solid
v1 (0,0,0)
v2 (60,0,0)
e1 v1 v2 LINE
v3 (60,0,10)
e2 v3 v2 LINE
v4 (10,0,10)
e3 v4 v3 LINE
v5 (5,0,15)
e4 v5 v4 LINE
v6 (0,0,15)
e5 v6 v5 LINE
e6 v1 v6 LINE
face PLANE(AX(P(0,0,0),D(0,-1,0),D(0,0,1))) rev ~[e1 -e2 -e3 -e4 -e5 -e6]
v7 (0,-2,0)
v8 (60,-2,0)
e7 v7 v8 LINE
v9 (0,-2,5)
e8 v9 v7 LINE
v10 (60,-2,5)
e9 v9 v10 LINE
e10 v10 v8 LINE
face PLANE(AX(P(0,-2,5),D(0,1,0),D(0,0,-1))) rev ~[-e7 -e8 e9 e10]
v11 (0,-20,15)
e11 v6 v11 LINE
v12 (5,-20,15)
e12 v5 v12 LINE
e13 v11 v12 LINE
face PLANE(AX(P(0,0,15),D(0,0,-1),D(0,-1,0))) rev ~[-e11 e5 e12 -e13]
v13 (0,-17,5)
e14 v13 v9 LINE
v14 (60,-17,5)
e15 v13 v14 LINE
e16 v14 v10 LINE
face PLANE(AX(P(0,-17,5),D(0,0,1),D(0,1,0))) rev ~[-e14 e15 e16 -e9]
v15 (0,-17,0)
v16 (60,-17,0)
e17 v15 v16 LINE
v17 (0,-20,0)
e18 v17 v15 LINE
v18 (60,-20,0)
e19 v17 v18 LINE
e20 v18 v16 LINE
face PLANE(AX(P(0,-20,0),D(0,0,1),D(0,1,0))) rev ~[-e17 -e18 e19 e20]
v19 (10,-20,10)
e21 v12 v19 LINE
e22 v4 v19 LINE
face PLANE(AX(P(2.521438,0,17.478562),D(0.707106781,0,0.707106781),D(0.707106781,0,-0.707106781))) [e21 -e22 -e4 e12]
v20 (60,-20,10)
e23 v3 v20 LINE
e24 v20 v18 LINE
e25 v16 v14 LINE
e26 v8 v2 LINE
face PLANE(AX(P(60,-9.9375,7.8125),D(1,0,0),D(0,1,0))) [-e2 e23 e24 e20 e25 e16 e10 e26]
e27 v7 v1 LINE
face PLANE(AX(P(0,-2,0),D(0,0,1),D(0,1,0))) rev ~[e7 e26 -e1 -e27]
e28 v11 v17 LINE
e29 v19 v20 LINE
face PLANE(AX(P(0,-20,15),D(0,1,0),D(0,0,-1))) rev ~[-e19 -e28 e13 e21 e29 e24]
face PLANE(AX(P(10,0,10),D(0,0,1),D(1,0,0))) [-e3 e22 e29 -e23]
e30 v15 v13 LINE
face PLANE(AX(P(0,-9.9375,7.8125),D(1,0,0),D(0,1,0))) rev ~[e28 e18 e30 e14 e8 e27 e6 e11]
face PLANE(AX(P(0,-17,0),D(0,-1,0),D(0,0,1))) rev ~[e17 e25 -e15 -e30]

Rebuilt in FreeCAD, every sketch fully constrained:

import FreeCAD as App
import Part
import Sketcher
Q = App.Units.Quantity

doc = App.newDocument("Part")
body = doc.addObject("PartDesign::Body", "Body")

# Sketch on YZ plane
sketch1 = body.newObject("Sketcher::SketchObject", "Sketch")
sketch1.AttachmentSupport = (doc.getObject("YZ_Plane"), [""])
sketch1.MapMode = "FlatFace"
sketch1.addGeometry(Part.LineSegment(App.Vector(-2, 0, 0), App.Vector(0, 0, 0)), False)
sketch1.addGeometry(Part.LineSegment(App.Vector(0, 0, 0), App.Vector(0, 15, 0)), False)
sketch1.addGeometry(Part.LineSegment(App.Vector(0, 15, 0), App.Vector(-20, 15, 0)), False)
sketch1.addGeometry(Part.LineSegment(App.Vector(-20, 15, 0), App.Vector(-20, 0, 0)), False)
sketch1.addGeometry(Part.LineSegment(App.Vector(-20, 0, 0), App.Vector(-17, 0, 0)), False)
sketch1.addGeometry(Part.LineSegment(App.Vector(-17, 0, 0), App.Vector(-17, 5, 0)), False)
sketch1.addGeometry(Part.LineSegment(App.Vector(-17, 5, 0), App.Vector(-2, 5, 0)), False)
sketch1.addGeometry(Part.LineSegment(App.Vector(-2, 5, 0), App.Vector(-2, 0, 0)), False)
sketch1.addConstraint(Sketcher.Constraint("Coincident", 0, 2, 1, 1))
sketch1.addConstraint(Sketcher.Constraint("Coincident", 1, 2, 2, 1))
sketch1.addConstraint(Sketcher.Constraint("Coincident", 2, 2, 3, 1))
sketch1.addConstraint(Sketcher.Constraint("Coincident", 3, 2, 4, 1))
sketch1.addConstraint(Sketcher.Constraint("Coincident", 4, 2, 5, 1))
sketch1.addConstraint(Sketcher.Constraint("Coincident", 5, 2, 6, 1))
sketch1.addConstraint(Sketcher.Constraint("Coincident", 6, 2, 7, 1))
sketch1.addConstraint(Sketcher.Constraint("Coincident", 7, 2, 0, 1))
sketch1.addConstraint(Sketcher.Constraint("Horizontal", 0))
sketch1.addConstraint(Sketcher.Constraint("Vertical", 1))
sketch1.addConstraint(Sketcher.Constraint("Horizontal", 2))
sketch1.addConstraint(Sketcher.Constraint("Vertical", 3))
sketch1.addConstraint(Sketcher.Constraint("Horizontal", 4))
sketch1.addConstraint(Sketcher.Constraint("Vertical", 5))
sketch1.addConstraint(Sketcher.Constraint("Horizontal", 6))
sketch1.addConstraint(Sketcher.Constraint("Vertical", 7))
sketch1.addConstraint(Sketcher.Constraint("Coincident", 0, 2, -1, 1))
sketch1.addConstraint(Sketcher.Constraint("PointOnObject", 3, 2, -1))
sketch1.addConstraint(Sketcher.Constraint("Equal", 6, 1))
sketch1.addConstraint(Sketcher.Constraint("DistanceX", 0, 1, 0, 2, Q("2 mm")))
sketch1.addConstraint(Sketcher.Constraint("DistanceX", 2, 2, 2, 1, Q("20 mm")))
sketch1.addConstraint(Sketcher.Constraint("DistanceX", 4, 1, 4, 2, Q("3 mm")))
sketch1.addConstraint(Sketcher.Constraint("DistanceY", 5, 1, 5, 2, Q("5 mm")))
pad1 = body.newObject("PartDesign::Pad", "Pad")
pad1.Profile = sketch1
pad1.Length = 60

# Sketch on XZ plane
sketch2 = body.newObject("Sketcher::SketchObject", "Sketch001")
sketch2.AttachmentSupport = (doc.getObject("XZ_Plane"), [""])
sketch2.MapMode = "FlatFace"
sketch2.addGeometry(Part.LineSegment(App.Vector(10, 10, 0), App.Vector(66, 10, 0)), False)
sketch2.addGeometry(Part.LineSegment(App.Vector(66, 10, 0), App.Vector(63, 17, 0)), False)
sketch2.addGeometry(Part.LineSegment(App.Vector(63, 17, 0), App.Vector(3, 17, 0)), False)
sketch2.addGeometry(Part.LineSegment(App.Vector(3, 17, 0), App.Vector(10, 10, 0)), False)
sketch2.addConstraint(Sketcher.Constraint("Coincident", 0, 2, 1, 1))
sketch2.addConstraint(Sketcher.Constraint("Coincident", 1, 2, 2, 1))
sketch2.addConstraint(Sketcher.Constraint("Coincident", 2, 2, 3, 1))
sketch2.addConstraint(Sketcher.Constraint("Coincident", 3, 2, 0, 1))
sketch2.addConstraint(Sketcher.Constraint("Horizontal", 0))
sketch2.addConstraint(Sketcher.Constraint("Horizontal", 2))
sketch2.addConstraint(Sketcher.Constraint("Angle", 3, Q("-45 deg")))
sketch2.addConstraint(Sketcher.Constraint("DistanceY", -1, 1, 0, 2, Q("10 mm")))
sketch2.addConstraint(Sketcher.Constraint("DistanceX", -1, 1, 3, 2, Q("10 mm")))
sketch2.addConstraint(Sketcher.Constraint("DistanceX", 1, 2, 0, 2, Q("3.126598 mm")))
sketch2.addConstraint(Sketcher.Constraint("DistanceX", 0, 1, 0, 2, Q("55.648042 mm")))
sketch2.addConstraint(Sketcher.Constraint("DistanceX", 2, 2, 2, 1, Q("60.000006 mm")))
pocket1 = body.newObject("PartDesign::Pocket", "Pocket")
pocket1.Profile = sketch2
pocket1.Type = "ThroughAll"
pocket1.Midplane = True

doc.recompute()
